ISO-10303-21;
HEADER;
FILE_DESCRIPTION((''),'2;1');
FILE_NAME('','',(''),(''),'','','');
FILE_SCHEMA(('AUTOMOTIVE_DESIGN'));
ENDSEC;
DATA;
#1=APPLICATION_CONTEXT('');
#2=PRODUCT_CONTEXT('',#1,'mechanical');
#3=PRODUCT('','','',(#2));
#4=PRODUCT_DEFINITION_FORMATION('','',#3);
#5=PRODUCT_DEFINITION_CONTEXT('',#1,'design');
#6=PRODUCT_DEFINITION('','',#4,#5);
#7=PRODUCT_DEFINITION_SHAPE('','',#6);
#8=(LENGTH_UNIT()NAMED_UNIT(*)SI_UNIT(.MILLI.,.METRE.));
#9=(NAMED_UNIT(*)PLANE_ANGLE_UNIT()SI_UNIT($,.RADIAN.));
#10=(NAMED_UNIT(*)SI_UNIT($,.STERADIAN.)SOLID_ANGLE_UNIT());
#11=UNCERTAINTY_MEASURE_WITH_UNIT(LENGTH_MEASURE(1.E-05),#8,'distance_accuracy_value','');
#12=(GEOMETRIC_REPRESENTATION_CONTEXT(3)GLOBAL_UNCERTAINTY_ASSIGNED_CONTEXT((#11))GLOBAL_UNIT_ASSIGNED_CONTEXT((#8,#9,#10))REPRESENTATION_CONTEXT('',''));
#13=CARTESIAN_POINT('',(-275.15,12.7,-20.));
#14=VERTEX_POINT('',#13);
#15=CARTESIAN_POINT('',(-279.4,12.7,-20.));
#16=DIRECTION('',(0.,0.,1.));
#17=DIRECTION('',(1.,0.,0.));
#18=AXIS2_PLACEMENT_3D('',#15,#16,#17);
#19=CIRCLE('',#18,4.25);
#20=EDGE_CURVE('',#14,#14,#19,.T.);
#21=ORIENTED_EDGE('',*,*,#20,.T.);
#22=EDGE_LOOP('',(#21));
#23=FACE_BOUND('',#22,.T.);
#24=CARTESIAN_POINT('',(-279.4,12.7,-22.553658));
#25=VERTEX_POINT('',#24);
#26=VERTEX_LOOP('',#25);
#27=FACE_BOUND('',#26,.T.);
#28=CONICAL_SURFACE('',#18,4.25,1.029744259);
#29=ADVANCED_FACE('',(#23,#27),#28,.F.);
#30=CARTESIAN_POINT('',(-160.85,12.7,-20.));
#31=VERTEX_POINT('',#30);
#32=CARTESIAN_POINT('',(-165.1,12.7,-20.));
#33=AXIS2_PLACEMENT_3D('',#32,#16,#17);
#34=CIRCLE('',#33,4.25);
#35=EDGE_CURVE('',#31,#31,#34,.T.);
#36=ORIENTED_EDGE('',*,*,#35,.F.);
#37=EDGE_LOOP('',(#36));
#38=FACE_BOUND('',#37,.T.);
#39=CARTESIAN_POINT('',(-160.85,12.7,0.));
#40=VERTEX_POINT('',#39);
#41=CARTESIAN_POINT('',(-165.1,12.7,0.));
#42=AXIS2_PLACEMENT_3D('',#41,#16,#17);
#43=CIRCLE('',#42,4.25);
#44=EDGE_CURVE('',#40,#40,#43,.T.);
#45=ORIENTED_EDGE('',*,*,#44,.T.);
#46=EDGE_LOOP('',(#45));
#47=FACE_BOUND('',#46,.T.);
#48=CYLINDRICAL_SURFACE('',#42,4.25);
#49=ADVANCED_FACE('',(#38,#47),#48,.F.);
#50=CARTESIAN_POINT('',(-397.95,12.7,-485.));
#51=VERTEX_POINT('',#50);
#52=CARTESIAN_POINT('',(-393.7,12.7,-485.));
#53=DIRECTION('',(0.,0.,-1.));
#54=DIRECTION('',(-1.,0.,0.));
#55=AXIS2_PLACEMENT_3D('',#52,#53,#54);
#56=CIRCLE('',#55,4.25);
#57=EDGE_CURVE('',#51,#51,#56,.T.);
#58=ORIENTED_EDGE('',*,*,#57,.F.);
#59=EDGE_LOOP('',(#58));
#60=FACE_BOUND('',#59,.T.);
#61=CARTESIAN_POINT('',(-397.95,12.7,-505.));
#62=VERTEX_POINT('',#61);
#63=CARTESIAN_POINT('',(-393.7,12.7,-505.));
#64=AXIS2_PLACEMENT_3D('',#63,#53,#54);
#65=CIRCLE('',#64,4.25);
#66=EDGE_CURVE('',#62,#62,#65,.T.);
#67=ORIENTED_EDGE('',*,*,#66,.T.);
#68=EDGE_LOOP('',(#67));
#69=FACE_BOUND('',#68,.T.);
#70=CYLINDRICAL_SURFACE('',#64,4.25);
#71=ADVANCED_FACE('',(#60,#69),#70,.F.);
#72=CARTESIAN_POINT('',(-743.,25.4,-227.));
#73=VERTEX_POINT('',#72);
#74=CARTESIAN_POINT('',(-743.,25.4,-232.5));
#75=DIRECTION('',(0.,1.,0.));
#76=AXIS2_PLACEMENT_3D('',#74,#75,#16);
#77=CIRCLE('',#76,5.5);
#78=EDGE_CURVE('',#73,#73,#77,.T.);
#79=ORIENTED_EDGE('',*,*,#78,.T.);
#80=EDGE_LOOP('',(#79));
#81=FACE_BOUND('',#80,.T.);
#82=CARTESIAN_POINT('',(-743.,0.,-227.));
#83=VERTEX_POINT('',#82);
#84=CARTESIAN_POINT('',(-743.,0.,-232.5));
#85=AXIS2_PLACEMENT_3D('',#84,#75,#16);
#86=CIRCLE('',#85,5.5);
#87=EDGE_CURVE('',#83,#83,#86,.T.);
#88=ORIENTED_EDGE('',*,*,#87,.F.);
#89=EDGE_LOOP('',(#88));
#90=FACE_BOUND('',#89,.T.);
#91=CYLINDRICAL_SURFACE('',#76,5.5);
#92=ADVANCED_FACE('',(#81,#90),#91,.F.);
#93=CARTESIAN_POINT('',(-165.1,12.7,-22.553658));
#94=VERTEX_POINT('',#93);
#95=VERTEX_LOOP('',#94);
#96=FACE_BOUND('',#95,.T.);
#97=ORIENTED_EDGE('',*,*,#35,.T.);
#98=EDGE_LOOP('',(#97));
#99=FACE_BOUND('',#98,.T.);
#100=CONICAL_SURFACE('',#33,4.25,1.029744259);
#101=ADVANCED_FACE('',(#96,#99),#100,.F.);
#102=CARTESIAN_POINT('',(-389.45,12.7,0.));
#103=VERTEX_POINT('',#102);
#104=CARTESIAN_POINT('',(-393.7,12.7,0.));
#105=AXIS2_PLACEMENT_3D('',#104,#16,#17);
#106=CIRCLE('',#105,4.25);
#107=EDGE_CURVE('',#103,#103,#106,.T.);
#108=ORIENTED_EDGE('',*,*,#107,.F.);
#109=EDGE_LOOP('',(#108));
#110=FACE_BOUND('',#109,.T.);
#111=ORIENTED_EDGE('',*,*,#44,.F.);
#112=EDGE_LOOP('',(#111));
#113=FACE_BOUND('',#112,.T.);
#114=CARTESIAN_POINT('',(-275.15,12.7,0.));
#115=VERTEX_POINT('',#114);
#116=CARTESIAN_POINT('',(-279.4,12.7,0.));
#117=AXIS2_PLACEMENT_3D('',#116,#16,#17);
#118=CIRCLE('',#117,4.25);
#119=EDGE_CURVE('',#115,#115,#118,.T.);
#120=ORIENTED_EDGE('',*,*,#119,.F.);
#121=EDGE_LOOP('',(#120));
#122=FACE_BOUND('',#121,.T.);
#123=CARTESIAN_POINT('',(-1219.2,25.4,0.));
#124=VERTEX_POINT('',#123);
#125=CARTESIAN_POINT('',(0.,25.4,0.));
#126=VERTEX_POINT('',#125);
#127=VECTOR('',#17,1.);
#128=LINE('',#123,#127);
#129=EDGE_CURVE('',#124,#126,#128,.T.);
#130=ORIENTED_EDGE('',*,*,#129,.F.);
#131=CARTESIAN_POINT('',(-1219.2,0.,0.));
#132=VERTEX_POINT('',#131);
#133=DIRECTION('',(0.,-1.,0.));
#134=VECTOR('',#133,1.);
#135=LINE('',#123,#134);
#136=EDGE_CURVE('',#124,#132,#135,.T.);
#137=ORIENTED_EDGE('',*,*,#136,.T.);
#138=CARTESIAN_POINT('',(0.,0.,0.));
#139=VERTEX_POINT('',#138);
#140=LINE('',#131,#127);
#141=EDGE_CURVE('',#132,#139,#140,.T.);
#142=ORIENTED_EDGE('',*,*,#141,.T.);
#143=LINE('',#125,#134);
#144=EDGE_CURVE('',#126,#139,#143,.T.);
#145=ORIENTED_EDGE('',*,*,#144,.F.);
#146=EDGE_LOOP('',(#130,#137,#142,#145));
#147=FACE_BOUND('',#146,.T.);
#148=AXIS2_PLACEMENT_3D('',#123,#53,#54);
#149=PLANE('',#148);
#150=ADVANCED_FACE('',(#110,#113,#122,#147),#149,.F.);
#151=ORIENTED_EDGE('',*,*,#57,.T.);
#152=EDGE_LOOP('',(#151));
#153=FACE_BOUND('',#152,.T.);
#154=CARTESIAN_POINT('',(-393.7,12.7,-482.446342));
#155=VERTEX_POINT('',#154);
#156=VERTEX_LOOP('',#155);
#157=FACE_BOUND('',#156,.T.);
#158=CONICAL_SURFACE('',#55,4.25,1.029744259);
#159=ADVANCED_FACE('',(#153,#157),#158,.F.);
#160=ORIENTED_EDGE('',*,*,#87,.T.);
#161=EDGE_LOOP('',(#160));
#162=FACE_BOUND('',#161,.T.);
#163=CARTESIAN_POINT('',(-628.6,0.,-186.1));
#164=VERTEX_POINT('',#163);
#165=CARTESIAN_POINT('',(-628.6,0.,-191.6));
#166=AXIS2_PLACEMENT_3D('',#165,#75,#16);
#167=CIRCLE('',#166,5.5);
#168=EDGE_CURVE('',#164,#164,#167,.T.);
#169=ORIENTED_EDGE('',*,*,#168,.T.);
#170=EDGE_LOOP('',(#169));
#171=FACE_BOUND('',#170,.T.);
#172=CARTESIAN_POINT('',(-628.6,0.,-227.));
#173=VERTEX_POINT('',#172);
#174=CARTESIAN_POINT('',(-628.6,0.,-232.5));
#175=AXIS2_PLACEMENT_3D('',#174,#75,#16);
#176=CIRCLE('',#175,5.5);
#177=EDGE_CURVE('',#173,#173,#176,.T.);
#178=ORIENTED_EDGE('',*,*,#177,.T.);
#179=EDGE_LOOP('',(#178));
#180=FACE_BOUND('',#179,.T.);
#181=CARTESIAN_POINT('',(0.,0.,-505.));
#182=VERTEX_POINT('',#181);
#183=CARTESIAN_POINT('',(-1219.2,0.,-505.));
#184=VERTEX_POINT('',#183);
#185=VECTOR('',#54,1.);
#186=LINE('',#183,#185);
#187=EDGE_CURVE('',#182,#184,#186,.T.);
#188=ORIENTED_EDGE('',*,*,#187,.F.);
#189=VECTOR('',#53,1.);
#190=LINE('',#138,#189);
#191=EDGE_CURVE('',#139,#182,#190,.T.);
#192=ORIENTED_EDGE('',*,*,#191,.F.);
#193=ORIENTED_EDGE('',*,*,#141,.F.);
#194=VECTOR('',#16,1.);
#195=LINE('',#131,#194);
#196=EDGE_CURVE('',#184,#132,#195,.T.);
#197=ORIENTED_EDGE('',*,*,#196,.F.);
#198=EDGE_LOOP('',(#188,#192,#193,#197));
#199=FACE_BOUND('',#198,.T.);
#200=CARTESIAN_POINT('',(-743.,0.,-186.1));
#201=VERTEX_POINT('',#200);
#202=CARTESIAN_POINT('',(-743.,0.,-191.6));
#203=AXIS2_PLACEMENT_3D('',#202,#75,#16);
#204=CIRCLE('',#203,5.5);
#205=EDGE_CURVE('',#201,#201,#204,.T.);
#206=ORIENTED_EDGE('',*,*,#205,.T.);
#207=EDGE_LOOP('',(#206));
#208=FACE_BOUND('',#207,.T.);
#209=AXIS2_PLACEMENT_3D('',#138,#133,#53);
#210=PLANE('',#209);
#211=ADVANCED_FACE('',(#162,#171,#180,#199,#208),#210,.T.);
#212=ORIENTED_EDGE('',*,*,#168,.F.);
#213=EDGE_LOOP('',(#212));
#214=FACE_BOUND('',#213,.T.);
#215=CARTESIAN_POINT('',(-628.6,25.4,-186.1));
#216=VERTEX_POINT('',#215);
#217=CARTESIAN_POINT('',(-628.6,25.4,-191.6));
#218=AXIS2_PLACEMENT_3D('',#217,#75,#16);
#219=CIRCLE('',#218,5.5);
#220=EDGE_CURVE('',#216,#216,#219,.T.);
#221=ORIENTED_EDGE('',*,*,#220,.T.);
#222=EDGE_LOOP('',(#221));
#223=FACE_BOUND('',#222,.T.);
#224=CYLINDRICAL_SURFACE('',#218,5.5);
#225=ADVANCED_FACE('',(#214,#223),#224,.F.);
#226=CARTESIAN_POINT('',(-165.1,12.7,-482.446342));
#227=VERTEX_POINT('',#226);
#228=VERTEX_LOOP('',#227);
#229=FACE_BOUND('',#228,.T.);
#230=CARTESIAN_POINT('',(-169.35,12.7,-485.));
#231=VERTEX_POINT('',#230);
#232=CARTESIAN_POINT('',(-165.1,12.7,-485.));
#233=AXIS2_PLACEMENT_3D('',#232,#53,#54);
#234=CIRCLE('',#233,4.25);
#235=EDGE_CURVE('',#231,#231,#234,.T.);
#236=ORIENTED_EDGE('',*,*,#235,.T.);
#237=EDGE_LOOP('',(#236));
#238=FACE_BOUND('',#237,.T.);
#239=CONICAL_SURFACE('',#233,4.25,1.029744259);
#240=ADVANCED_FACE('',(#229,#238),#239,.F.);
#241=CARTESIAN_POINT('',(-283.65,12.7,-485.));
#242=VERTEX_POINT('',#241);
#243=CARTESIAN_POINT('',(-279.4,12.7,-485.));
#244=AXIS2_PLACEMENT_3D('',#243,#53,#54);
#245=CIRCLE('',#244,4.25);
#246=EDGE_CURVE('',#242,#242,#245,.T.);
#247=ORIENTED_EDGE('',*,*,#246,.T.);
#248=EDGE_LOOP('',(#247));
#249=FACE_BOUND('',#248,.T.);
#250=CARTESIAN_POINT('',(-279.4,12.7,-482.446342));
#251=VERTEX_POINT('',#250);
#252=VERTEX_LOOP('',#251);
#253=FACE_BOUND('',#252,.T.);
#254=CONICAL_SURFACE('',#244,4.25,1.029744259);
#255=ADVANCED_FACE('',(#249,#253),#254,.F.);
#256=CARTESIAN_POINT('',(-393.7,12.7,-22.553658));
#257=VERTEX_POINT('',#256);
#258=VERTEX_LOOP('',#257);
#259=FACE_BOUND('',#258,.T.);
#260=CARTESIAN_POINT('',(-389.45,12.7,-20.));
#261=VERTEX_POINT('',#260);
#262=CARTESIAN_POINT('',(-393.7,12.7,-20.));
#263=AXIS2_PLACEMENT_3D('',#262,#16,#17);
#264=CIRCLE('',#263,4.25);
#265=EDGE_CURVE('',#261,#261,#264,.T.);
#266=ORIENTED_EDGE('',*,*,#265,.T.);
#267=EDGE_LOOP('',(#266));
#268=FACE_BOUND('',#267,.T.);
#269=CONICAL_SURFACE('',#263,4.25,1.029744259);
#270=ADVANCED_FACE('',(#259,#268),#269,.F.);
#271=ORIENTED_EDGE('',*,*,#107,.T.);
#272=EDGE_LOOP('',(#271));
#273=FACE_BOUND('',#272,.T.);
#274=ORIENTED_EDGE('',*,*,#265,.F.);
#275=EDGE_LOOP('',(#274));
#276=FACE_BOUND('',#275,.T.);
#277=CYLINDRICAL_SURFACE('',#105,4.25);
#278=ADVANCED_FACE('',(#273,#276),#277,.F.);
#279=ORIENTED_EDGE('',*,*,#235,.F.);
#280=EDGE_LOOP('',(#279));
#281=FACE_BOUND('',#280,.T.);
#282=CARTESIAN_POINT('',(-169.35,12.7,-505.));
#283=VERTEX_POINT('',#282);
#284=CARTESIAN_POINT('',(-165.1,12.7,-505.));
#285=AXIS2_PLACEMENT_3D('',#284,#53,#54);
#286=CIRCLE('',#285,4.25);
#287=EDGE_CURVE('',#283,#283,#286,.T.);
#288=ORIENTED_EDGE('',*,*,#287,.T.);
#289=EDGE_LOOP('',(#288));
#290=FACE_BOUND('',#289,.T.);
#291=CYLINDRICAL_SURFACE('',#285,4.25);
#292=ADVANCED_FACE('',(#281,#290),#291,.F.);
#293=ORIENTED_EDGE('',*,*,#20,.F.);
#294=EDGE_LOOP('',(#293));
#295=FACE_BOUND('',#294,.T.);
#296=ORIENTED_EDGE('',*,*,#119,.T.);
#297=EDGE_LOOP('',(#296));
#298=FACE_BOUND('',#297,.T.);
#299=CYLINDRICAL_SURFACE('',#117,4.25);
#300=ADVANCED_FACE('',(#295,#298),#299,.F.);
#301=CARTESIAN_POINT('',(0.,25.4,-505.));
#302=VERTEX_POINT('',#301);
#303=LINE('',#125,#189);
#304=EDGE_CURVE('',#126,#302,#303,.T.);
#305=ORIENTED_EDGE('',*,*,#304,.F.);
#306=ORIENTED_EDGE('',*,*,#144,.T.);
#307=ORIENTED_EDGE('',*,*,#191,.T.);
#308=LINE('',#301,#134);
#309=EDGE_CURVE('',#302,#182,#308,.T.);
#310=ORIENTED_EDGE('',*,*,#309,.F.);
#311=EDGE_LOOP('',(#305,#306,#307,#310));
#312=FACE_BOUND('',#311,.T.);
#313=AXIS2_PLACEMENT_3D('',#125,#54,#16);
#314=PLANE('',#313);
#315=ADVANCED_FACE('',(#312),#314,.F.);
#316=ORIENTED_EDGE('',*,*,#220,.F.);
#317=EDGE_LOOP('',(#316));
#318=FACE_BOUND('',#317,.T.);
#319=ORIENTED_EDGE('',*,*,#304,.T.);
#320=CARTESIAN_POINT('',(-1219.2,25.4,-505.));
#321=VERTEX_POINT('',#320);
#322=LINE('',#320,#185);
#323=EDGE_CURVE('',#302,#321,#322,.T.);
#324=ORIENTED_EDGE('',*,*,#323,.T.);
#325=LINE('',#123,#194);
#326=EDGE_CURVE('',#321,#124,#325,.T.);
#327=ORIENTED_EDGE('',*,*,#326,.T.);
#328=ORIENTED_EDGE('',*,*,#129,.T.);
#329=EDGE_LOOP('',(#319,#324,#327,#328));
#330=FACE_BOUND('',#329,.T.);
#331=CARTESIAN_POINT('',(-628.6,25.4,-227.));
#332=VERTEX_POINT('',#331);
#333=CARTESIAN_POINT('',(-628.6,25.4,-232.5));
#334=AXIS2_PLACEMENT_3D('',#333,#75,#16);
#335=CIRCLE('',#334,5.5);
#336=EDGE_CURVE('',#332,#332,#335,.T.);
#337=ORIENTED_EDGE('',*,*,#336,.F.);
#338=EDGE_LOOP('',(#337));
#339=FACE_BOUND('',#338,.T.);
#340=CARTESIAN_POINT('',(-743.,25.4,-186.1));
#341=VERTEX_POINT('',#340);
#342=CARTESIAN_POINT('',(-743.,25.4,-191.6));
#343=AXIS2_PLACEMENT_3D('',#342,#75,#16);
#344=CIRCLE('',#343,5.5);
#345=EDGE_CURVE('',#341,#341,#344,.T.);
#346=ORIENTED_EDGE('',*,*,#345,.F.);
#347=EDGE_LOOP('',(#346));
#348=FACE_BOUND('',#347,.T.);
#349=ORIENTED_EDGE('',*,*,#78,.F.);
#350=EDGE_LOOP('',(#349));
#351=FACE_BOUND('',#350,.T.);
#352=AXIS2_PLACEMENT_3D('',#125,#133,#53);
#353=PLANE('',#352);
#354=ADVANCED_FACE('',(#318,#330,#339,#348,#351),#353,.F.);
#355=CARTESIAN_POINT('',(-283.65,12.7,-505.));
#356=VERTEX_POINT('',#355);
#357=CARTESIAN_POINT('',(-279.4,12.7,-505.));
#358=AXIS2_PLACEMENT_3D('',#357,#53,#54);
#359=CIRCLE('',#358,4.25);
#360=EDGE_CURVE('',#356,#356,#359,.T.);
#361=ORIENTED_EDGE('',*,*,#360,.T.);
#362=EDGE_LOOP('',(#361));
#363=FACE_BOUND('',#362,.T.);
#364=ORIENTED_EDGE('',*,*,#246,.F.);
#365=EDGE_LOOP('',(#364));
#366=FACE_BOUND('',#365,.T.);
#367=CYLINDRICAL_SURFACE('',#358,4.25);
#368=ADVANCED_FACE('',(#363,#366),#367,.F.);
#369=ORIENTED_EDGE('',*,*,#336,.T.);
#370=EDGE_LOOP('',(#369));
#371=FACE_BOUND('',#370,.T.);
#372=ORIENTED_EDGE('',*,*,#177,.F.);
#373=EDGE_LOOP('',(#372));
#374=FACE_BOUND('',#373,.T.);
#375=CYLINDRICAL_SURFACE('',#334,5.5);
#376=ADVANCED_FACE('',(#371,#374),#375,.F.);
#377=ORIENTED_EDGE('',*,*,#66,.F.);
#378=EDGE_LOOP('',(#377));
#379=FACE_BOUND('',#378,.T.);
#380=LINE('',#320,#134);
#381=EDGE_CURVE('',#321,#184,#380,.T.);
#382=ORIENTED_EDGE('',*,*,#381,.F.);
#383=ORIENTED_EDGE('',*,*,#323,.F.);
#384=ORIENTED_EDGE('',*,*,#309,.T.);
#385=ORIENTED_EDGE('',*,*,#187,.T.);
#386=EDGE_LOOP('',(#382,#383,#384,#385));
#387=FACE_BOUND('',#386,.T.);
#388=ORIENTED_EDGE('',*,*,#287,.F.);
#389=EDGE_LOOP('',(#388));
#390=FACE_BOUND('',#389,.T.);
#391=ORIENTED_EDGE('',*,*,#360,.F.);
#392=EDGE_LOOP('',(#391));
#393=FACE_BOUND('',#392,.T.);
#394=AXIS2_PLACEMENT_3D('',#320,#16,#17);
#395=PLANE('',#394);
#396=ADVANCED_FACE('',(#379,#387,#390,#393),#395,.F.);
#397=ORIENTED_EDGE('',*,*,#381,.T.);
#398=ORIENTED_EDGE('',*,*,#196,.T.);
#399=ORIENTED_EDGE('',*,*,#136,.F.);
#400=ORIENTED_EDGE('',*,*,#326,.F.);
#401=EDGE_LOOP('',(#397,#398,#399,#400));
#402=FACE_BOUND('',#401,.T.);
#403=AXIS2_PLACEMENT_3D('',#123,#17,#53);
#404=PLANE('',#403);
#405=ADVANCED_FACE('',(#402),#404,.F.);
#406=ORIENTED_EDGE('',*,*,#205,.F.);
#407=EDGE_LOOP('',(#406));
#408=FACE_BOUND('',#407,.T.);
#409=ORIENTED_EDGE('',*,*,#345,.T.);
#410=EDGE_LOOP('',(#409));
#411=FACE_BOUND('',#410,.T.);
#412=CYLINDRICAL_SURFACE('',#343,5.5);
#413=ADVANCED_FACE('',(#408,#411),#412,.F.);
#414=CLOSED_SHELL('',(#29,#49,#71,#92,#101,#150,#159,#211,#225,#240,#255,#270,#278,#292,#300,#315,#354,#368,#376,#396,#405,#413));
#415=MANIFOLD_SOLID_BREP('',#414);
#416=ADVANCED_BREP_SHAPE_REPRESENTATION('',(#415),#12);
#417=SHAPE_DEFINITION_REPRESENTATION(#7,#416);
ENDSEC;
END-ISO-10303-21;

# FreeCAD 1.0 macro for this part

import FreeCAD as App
import Part
import Sketcher

V = App.Vector
Q = App.Units.Quantity


def add_polygon(sketch, points):
    """Adds a closed chain of lines whose ends are joined by coincident constraints."""
    first, n = sketch.GeometryCount, len(points)
    for a, b in zip(points, points[1:] + points[:1]):
        sketch.addGeometry(Part.LineSegment(App.Vector(*a, 0), App.Vector(*b, 0)), False)
    for i in range(n):
        sketch.addConstraint(Sketcher.Constraint("Coincident", first + i, 2, first + (i + 1) % n, 1))

doc = App.newDocument("Part")
body = doc.addObject("PartDesign::Body", "Body")

# Sketch on XZ plane
sketch1 = body.newObject("Sketcher::SketchObject", "Sketch")
sketch1.AttachmentSupport = (doc.getObject("XZ_Plane"), [""])
sketch1.MapMode = "FlatFace"
add_polygon(sketch1, [(-1219.2, -505), (-1219.2, 0), (0, 0), (0, -505)])  # lines 0-3
sketch1.addConstraint([
    Sketcher.Constraint("Vertical", 0),
    Sketcher.Constraint("Horizontal", 1),
    Sketcher.Constraint("Vertical", 2),
    Sketcher.Constraint("Horizontal", 3),
    Sketcher.Constraint("Coincident", 1, 2, -1, 1),
    Sketcher.Constraint("DistanceY", 0, 1, 0, 2, Q("505 mm")),
    Sketcher.Constraint("DistanceX", 1, 1, 1, 2, Q("1219.2 mm")),
])
pad1 = body.newObject("PartDesign::Pad", "Pad")
pad1.Profile = sketch1
pad1.Length = 25.4
pad1.Reversed = True

# Sketch on XY plane
sketch2 = body.newObject("Sketcher::SketchObject", "Sketch001")
sketch2.AttachmentSupport = (doc.getObject("XY_Plane"), [""])
sketch2.MapMode = "FlatFace"
sketch2.addGeometry([
    Part.Circle(V(-393.7, 12.7, 0), V(0, 0, 1), 4.25),
    Part.Circle(V(-279.4, 12.7, 0), V(0, 0, 1), 4.25),
    Part.Circle(V(-165.1, 12.7, 0), V(0, 0, 1), 4.25),
], False)
sketch2.addConstraint([
    Sketcher.Constraint("Equal", 0, 1),
    Sketcher.Constraint("Equal", 1, 2),
    Sketcher.Constraint("Horizontal", 0, 3, 1, 3),
    Sketcher.Constraint("Horizontal", 1, 3, 2, 3),
    Sketcher.Constraint("Diameter", 0, Q("8.5 mm")),
    Sketcher.Constraint("DistanceX", 0, 3, -1, 1, Q("393.7 mm")),
    Sketcher.Constraint("DistanceY", -1, 1, 0, 3, Q("12.7 mm")),
    Sketcher.Constraint("DistanceX", 1, 3, -1, 1, Q("279.4 mm")),
    Sketcher.Constraint("DistanceX", 2, 3, -1, 1, Q("165.1 mm")),
])
doc.recompute()
hole = body.newObject("PartDesign::Hole", "Hole")
hole.Profile = sketch2
hole.ThreadType = "None"
hole.Diameter = 8.5
hole.DepthType = "Dimension"
hole.Depth = 20
hole.DrillPoint = "Angled"
hole.DrillPointAngle = 118

# Sketch on XY plane
sketch3 = body.newObject("Sketcher::SketchObject", "Sketch002")
sketch3.AttachmentSupport = (doc.getObject("XY_Plane"), [""])
sketch3.MapMode = "FlatFace"
sketch3.AttachmentOffset = App.Placement(V(0, 0, -505), App.Rotation())
sketch3.addGeometry([
    Part.Circle(V(-165.1, 12.7, 0), V(0, 0, 1), 4.25),
    Part.Circle(V(-279.4, 12.7, 0), V(0, 0, 1), 4.25),
    Part.Circle(V(-393.7, 12.7, 0), V(0, 0, 1), 4.25),
], False)
sketch3.addConstraint([
    Sketcher.Constraint("Equal", 0, 1),
    Sketcher.Constraint("Equal", 1, 2),
    Sketcher.Constraint("Horizontal", 0, 3, 1, 3),
    Sketcher.Constraint("Horizontal", 1, 3, 2, 3),
    Sketcher.Constraint("Diameter", 0, Q("8.5 mm")),
    Sketcher.Constraint("DistanceX", 0, 3, -1, 1, Q("165.1 mm")),
    Sketcher.Constraint("DistanceY", -1, 1, 0, 3, Q("12.7 mm")),
    Sketcher.Constraint("DistanceX", 1, 3, -1, 1, Q("279.4 mm")),
    Sketcher.Constraint("DistanceX", 2, 3, -1, 1, Q("393.7 mm")),
])
doc.recompute()
hole2 = body.newObject("PartDesign::Hole", "Hole001")
hole2.Profile = sketch3
hole2.ThreadType = "None"
hole2.Diameter = 8.5
hole2.DepthType = "Dimension"
hole2.Depth = 20
hole2.DrillPoint = "Angled"
hole2.DrillPointAngle = 118
hole2.Reversed = True

# Sketch on XZ plane
sketch4 = body.newObject("Sketcher::SketchObject", "Sketch003")
sketch4.AttachmentSupport = (doc.getObject("XZ_Plane"), [""])
sketch4.MapMode = "FlatFace"
sketch4.AttachmentOffset = App.Placement(V(0, 0, -25.4), App.Rotation())
sketch4.addGeometry([
    Part.Circle(V(-628.6, -191.6, 0), V(0, 0, 1), 5.5),
    Part.Circle(V(-628.6, -232.5, 0), V(0, 0, 1), 5.5),
    Part.Circle(V(-743, -232.5, 0), V(0, 0, 1), 5.5),
    Part.Circle(V(-743, -191.6, 0), V(0, 0, 1), 5.5),
], False)
sketch4.addConstraint([
    Sketcher.Constraint("Equal", 0, 1),
    Sketcher.Constraint("Equal", 1, 2),
    Sketcher.Constraint("Equal", 2, 3),
    Sketcher.Constraint("Horizontal", 1, 3, 2, 3),
    Sketcher.Constraint("Horizontal", 0, 3, 3, 3),
    Sketcher.Constraint("Vertical", 0, 3, 1, 3),
    Sketcher.Constraint("Vertical", 2, 3, 3, 3),
    Sketcher.Constraint("Diameter", 0, Q("11 mm")),
    Sketcher.Constraint("DistanceX", 2, 3, -1, 1, Q("743 mm")),
    Sketcher.Constraint("DistanceX", 0, 3, -1, 1, Q("628.6 mm")),
    Sketcher.Constraint("DistanceY", 0, 3, -1, 1, Q("191.6 mm")),
    Sketcher.Constraint("DistanceY", 1, 3, -1, 1, Q("232.5 mm")),
])
doc.recompute()
hole3 = body.newObject("PartDesign::Hole", "Hole002")
hole3.Profile = sketch4
hole3.ThreadType = "None"
hole3.Diameter = 11
hole3.DepthType = "ThroughAll"
hole3.Reversed = True

doc.recompute()
